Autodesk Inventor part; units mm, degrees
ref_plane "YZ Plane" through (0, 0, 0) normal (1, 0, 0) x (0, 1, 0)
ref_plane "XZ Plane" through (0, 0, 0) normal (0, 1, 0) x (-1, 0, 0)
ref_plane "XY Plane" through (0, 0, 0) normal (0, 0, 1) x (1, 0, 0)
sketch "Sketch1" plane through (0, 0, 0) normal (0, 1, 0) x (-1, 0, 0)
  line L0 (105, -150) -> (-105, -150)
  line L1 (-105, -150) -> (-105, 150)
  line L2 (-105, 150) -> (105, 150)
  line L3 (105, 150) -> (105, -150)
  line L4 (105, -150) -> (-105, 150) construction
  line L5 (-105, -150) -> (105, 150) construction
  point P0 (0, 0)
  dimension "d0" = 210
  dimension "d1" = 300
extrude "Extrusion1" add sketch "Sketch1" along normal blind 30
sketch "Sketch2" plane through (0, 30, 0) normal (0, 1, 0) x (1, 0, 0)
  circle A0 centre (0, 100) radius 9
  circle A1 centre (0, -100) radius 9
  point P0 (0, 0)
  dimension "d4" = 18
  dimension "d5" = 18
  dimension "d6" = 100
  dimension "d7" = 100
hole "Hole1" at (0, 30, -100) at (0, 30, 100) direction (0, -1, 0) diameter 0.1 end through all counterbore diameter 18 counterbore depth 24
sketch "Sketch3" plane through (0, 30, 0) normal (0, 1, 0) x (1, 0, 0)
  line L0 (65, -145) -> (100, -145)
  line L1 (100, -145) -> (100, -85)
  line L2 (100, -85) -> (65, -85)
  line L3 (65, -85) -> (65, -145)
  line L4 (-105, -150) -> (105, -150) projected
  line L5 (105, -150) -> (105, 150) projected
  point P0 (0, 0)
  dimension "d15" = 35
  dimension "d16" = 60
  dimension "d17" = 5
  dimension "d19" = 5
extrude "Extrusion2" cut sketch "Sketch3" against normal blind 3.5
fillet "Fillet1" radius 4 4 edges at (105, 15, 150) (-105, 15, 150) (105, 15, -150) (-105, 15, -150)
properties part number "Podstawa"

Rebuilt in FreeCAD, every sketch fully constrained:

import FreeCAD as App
import Part
import Sketcher
Q = App.Units.Quantity


def edges_at(feature, points):
    """Names of the edges that pass closest to the given points."""
    edges = feature.Shape.Edges
    near = lambda p: min(range(len(edges)), key=lambda i: edges[i].distToShape(Part.Vertex(*p))[0])
    return sorted({f"Edge{near(p) + 1}" for p in points})


def add_polygon(sketch, points):
    """Adds a closed chain of lines whose ends are joined by coincident constraints."""
    first, n = sketch.GeometryCount, len(points)
    for a, b in zip(points, points[1:] + points[:1]):
        sketch.addGeometry(Part.LineSegment(App.Vector(*a, 0), App.Vector(*b, 0)), False)
    for i in range(n):
        sketch.addConstraint(Sketcher.Constraint("Coincident", first + i, 2, first + (i + 1) % n, 1))

doc = App.newDocument("Part")
body = doc.addObject("PartDesign::Body", "Body")

# Sketch on XZ plane
sketch1 = body.newObject("Sketcher::SketchObject", "Sketch")
sketch1.AttachmentSupport = (doc.getObject("XZ_Plane"), [""])
sketch1.MapMode = "FlatFace"
add_polygon(sketch1, [(105, -150), (-105, -150), (-105, 150), (105, 150)])  # lines 0-3
sketch1.addConstraint(Sketcher.Constraint("Horizontal", 0))
sketch1.addConstraint(Sketcher.Constraint("Vertical", 1))
sketch1.addConstraint(Sketcher.Constraint("Horizontal", 2))
sketch1.addConstraint(Sketcher.Constraint("Vertical", 3))
sketch1.addConstraint(Sketcher.Constraint("Symmetric", 0, 2, 2, 2, -1, 1))
sketch1.addConstraint(Sketcher.Constraint("DistanceX", 0, 2, 0, 1, Q("210 mm")))
sketch1.addConstraint(Sketcher.Constraint("DistanceY", 1, 1, 1, 2, Q("300 mm")))
pad1 = body.newObject("PartDesign::Pad", "Pad")
pad1.Profile = sketch1
pad1.Length = 30
pad1.Reversed = True

# Sketch on XZ plane
sketch2 = body.newObject("Sketcher::SketchObject", "Sketch001")
sketch2.AttachmentSupport = (doc.getObject("XZ_Plane"), [""])
sketch2.MapMode = "FlatFace"
sketch2.AttachmentOffset = App.Placement(App.Vector(0, 0, -30), App.Rotation())
sketch2.addGeometry(Part.Circle(App.Vector(0, -100, 0), App.Vector(0, 0, 1), 0.05), False)
sketch2.addGeometry(Part.Circle(App.Vector(0, 100, 0), App.Vector(0, 0, 1), 0.05), False)
sketch2.addConstraint(Sketcher.Constraint("Equal", 0, 1))
sketch2.addConstraint(Sketcher.Constraint("Symmetric", 0, 3, 1, 3, -1, 1))
sketch2.addConstraint(Sketcher.Constraint("PointOnObject", 0, 3, -2))
sketch2.addConstraint(Sketcher.Constraint("Diameter", 0, Q("0.1 mm")))
sketch2.addConstraint(Sketcher.Constraint("DistanceY", 0, 3, -1, 1, Q("100 mm")))
doc.recompute()
hole = body.newObject("PartDesign::Hole", "Hole")
hole.Profile = sketch2
hole.ThreadType = "None"
hole.Diameter = 0.1
hole.DepthType = "ThroughAll"
hole.HoleCutType = "Counterbore"
hole.HoleCutDiameter = 18
hole.HoleCutDepth = 24
hole.Reversed = True

# Sketch on XZ plane
sketch3 = body.newObject("Sketcher::SketchObject", "Sketch002")
sketch3.AttachmentSupport = (doc.getObject("XZ_Plane"), [""])
sketch3.MapMode = "FlatFace"
sketch3.AttachmentOffset = App.Placement(App.Vector(0, 0, -30), App.Rotation())
add_polygon(sketch3, [(65, 85), (65, 145), (100, 145), (100, 85)])  # lines 0-3
sketch3.addConstraint(Sketcher.Constraint("Vertical", 0))
sketch3.addConstraint(Sketcher.Constraint("Horizontal", 1))
sketch3.addConstraint(Sketcher.Constraint("Vertical", 2))
sketch3.addConstraint(Sketcher.Constraint("Horizontal", 3))
sketch3.addConstraint(Sketcher.Constraint("DistanceX", 1, 1, 1, 2, Q("35 mm")))
sketch3.addConstraint(Sketcher.Constraint("DistanceY", 0, 1, 0, 2, Q("60 mm")))
sketch3.addConstraint(Sketcher.Constraint("DistanceX", -1, 1, 0, 2, Q("65 mm")))
sketch3.addConstraint(Sketcher.Constraint("DistanceY", -1, 1, 0, 2, Q("145 mm")))
pocket1 = body.newObject("PartDesign::Pocket", "Pocket")
pocket1.Profile = sketch3
pocket1.Length = 3.5
pocket1.Reversed = True
doc.recompute()

fillet = body.newObject("PartDesign::Fillet", "Fillet")
fillet.Base = (pocket1, edges_at(pocket1, [
    (105, 15, 150),
    (-105, 15, 150),
    (105, 15, -150),
    (-105, 15, -150),
]))
fillet.Radius = 4

doc.recompute()
